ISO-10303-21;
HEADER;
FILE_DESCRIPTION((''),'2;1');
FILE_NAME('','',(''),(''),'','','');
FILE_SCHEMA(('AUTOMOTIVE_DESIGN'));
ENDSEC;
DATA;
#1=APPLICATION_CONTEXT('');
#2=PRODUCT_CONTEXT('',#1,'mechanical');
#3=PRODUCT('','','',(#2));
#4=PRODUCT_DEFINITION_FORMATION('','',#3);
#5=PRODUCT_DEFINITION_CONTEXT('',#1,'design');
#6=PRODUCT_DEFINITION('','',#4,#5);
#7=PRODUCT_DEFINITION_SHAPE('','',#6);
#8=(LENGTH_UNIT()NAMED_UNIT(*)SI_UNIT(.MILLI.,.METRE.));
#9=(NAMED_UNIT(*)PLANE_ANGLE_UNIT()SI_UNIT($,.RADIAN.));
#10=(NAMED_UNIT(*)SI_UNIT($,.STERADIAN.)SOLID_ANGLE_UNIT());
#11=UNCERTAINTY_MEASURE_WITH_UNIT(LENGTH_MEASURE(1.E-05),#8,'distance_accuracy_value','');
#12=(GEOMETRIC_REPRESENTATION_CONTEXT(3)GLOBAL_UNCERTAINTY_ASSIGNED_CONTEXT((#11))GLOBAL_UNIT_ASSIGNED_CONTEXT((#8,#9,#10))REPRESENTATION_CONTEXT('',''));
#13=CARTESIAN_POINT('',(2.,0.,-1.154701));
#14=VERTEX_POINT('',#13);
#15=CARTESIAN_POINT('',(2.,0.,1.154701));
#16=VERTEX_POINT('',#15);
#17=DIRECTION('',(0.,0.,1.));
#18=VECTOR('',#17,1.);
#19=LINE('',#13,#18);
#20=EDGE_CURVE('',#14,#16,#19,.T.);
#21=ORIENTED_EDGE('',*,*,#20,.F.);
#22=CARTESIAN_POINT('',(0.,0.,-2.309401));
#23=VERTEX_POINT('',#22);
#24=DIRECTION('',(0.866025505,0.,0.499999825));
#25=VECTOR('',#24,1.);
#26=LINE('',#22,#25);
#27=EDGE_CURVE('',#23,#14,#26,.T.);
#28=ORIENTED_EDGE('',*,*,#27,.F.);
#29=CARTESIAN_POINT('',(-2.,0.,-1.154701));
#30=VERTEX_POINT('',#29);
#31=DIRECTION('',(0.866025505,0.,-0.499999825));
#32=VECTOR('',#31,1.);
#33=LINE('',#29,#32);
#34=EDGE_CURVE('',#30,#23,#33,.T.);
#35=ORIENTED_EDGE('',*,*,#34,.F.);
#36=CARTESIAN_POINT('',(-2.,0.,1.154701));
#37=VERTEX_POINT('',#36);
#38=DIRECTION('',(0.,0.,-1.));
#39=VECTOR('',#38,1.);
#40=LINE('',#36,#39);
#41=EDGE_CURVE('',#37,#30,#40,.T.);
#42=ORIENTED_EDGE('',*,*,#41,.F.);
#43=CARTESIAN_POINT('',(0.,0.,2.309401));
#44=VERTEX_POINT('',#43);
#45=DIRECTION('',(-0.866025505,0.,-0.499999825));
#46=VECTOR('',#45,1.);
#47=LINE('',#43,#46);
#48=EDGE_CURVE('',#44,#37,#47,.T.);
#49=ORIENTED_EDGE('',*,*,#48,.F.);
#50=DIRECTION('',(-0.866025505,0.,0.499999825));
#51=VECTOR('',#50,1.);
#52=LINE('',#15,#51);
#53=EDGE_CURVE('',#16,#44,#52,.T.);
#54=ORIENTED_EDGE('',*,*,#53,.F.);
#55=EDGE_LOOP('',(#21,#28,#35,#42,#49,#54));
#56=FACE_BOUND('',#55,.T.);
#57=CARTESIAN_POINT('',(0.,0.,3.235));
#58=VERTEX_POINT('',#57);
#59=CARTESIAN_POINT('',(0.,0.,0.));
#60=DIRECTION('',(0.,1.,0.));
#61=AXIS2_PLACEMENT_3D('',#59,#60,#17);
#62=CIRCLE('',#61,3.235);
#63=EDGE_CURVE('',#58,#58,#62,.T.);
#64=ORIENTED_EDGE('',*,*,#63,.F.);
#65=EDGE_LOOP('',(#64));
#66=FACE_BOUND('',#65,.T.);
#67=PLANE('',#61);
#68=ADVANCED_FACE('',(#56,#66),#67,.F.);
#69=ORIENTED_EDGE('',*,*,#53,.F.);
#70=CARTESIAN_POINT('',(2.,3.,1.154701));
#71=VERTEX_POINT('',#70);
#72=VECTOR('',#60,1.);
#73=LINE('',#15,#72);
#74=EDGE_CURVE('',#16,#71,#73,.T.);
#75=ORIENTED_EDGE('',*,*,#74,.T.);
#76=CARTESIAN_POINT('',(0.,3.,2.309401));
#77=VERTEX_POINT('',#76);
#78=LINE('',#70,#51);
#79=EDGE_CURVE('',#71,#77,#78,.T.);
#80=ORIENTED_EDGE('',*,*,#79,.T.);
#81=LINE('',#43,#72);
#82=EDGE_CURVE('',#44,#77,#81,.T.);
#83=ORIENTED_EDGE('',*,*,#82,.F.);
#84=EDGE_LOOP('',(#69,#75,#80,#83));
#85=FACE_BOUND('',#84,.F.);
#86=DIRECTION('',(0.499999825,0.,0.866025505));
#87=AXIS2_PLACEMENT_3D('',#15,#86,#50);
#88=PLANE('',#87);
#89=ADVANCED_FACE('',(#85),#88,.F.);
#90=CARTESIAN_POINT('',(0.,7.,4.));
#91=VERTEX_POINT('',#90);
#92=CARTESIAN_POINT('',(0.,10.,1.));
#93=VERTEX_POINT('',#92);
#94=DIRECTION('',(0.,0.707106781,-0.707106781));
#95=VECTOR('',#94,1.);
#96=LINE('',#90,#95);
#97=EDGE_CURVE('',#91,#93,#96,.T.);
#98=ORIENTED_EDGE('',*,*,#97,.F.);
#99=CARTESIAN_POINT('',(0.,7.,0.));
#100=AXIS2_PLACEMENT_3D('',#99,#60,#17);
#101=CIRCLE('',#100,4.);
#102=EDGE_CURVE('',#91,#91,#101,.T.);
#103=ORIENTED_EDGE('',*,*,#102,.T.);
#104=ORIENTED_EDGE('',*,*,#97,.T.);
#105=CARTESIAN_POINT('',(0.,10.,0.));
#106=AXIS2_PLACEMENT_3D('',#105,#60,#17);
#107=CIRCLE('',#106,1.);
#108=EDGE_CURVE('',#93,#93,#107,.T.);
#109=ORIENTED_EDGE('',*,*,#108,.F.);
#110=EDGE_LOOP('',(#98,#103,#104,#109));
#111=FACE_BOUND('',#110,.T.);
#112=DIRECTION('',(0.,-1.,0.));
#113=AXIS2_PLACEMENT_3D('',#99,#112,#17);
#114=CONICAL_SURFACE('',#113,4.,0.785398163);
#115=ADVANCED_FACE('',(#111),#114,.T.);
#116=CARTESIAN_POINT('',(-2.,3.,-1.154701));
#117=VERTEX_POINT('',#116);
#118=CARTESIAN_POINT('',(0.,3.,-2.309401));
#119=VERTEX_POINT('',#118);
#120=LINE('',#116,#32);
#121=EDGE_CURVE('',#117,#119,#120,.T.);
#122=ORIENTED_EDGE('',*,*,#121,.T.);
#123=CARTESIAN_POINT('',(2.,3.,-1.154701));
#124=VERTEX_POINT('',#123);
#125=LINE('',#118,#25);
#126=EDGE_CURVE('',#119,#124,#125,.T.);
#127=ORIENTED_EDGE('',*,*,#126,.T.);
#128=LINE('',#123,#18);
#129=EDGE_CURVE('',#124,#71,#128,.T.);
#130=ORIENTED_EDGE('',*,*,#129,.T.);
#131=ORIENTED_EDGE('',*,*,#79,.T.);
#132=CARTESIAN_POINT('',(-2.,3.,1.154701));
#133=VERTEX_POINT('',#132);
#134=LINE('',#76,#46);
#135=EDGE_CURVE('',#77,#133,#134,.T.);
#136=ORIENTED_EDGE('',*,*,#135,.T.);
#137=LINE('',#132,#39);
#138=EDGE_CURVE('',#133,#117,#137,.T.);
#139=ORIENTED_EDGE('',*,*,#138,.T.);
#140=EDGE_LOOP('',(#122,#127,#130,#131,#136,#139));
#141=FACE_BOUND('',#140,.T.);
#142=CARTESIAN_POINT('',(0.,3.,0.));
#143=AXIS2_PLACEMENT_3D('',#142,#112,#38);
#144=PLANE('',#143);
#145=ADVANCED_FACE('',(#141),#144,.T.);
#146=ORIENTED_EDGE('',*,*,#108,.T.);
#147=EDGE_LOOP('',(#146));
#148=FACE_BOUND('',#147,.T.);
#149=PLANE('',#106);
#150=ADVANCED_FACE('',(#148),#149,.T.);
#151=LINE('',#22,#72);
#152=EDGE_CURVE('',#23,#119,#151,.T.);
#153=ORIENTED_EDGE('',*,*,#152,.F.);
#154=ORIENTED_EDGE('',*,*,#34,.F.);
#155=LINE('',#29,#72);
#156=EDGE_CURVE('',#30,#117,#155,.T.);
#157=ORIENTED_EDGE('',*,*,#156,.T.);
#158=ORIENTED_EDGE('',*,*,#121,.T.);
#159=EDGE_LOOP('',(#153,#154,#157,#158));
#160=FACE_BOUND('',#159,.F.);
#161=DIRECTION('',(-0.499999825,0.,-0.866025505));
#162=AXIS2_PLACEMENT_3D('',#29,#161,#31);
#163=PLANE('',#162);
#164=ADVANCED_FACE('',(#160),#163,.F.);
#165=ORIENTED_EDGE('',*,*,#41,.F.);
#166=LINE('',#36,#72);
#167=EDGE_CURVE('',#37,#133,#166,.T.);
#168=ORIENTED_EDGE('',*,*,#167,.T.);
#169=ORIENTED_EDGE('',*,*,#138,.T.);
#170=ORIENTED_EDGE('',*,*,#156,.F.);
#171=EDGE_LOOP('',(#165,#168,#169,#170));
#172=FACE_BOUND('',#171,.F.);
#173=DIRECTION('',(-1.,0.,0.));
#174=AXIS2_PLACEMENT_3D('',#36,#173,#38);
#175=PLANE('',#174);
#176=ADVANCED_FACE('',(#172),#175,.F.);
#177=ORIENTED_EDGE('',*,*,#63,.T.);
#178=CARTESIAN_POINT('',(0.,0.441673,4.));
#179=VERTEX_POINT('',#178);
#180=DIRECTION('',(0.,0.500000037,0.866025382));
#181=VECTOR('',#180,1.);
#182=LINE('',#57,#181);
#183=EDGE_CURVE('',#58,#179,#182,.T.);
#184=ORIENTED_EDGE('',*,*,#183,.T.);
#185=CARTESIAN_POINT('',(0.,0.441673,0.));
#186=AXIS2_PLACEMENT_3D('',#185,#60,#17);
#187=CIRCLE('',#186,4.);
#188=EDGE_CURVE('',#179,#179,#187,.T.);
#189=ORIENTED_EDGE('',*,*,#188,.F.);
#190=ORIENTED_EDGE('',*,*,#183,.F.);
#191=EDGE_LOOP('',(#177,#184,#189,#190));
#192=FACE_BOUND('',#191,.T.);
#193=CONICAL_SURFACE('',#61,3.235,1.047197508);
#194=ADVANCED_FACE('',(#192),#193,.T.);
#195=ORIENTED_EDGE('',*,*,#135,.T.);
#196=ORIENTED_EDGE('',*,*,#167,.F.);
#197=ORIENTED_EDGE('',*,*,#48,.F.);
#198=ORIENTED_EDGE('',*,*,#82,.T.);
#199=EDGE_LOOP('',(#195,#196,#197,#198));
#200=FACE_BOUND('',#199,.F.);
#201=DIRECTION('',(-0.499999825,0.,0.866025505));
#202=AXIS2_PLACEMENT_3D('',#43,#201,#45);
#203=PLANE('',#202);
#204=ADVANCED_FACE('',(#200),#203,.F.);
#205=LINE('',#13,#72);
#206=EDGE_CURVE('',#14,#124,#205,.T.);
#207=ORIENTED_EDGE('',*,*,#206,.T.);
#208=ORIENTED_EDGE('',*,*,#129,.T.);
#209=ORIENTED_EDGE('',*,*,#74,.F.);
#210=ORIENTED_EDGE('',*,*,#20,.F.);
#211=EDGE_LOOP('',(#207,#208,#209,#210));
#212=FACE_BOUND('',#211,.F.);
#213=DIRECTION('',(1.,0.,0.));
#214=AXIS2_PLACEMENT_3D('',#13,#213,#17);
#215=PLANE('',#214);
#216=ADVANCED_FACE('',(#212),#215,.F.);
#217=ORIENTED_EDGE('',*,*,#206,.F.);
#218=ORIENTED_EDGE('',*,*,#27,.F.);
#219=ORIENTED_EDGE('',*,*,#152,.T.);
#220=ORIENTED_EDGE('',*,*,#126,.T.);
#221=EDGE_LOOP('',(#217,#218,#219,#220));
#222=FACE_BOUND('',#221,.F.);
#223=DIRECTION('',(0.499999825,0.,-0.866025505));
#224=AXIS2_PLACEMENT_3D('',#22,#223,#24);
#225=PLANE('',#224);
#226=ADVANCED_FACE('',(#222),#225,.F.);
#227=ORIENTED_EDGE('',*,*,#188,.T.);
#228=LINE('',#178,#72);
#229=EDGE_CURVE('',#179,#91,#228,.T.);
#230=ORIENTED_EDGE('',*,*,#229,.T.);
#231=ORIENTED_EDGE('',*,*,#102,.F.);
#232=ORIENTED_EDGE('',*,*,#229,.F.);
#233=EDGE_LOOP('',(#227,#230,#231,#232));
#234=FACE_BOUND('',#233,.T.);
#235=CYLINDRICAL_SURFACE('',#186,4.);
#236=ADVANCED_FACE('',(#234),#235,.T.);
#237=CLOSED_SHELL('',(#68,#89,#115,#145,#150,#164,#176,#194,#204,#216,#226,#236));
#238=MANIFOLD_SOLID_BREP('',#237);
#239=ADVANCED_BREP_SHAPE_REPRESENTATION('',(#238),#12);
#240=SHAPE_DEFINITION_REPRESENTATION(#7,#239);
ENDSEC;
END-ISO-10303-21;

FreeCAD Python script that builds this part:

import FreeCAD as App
import Part
import Sketcher
Q = App.Units.Quantity


def add_polygon(sketch, points):
    """Adds a closed chain of lines whose ends are joined by coincident constraints."""
    first, n = sketch.GeometryCount, len(points)
    for a, b in zip(points, points[1:] + points[:1]):
        sketch.addGeometry(Part.LineSegment(App.Vector(*a, 0), App.Vector(*b, 0)), False)
    for i in range(n):
        sketch.addConstraint(Sketcher.Constraint("Coincident", first + i, 2, first + (i + 1) % n, 1))

doc = App.newDocument("Part")
body = doc.addObject("PartDesign::Body", "Body")

# Sketch on YZ plane
sketch1 = doc.addObject("Sketcher::SketchObject", "Sketch")
body.addObject(sketch1)
sketch1.AttachmentSupport = (doc.YZ_Plane, [""])
sketch1.MapMode = "FlatFace"
add_polygon(sketch1, [(0, 3.2), (0, 0), (10, 0), (10, 1), (7, 4), (0.4, 4)])  # lines 0-5
sketch1.addConstraint(Sketcher.Constraint("Vertical", 0))
sketch1.addConstraint(Sketcher.Constraint("Horizontal", 1))
sketch1.addConstraint(Sketcher.Constraint("Vertical", 2))
sketch1.addConstraint(Sketcher.Constraint("Horizontal", 4))
sketch1.addConstraint(Sketcher.Constraint("Coincident", 0, 2, -1, 1))
sketch1.addConstraint(Sketcher.Constraint("DistanceX", 1, 1, 1, 2, 10.0))
sketch1.addConstraint(Sketcher.Constraint("DistanceY", 2, 1, 2, 2, 1.0))
sketch1.addConstraint(Sketcher.Constraint("Angle", 3, Q("135 deg")))
sketch1.addConstraint(Sketcher.Constraint("Angle", 5, Q("-120.000002 deg")))
sketch1.addConstraint(Sketcher.Constraint("DistanceX", -1, 1, 3, 2, 7.0))
sketch1.addConstraint(Sketcher.Constraint("DistanceY", 0, 2, 0, 1, 3.235))
revolution = doc.addObject("PartDesign::Revolution", "Revolution")
body.addObject(revolution)
revolution.Profile = sketch1
revolution.ReferenceAxis = (sketch1, ["H_Axis"])
revolution.Angle = 360

# Sketch on XZ plane
sketch2 = doc.addObject("Sketcher::SketchObject", "Sketch001")
body.addObject(sketch2)
sketch2.AttachmentSupport = (doc.XZ_Plane, [""])
sketch2.MapMode = "FlatFace"
add_polygon(sketch2, [(-2, 1.2), (-2, -1.2), (0, -2.3), (2, -1.2), (2, 1.2), (0, 2.3)])  # lines 0-5
sketch2.addConstraint(Sketcher.Constraint("Vertical", 0))
sketch2.addConstraint(Sketcher.Constraint("Vertical", 3))
sketch2.addConstraint(Sketcher.Constraint("Symmetric", 0, 2, 3, 2, -1, 1))
sketch2.addConstraint(Sketcher.Constraint("Symmetric", 1, 2, 4, 2, -1, 1))
sketch2.addConstraint(Sketcher.Constraint("PointOnObject", 1, 2, -2))
sketch2.addConstraint(Sketcher.Constraint("Parallel", 2, 5))
sketch2.addConstraint(Sketcher.Constraint("Horizontal", 0, 2, 2, 2))
sketch2.addConstraint(Sketcher.Constraint("Angle", 1, Q("-29.999988 deg")))
sketch2.addConstraint(Sketcher.Constraint("DistanceX", 0, 2, -1, 1, 2.0))
sketch2.addConstraint(Sketcher.Constraint("DistanceY", 0, 2, 0, 1, 2.309402))
pocket1 = doc.addObject("PartDesign::Pocket", "Pocket")
body.addObject(pocket1)
pocket1.Profile = sketch2
pocket1.Length = 3

doc.recompute()
